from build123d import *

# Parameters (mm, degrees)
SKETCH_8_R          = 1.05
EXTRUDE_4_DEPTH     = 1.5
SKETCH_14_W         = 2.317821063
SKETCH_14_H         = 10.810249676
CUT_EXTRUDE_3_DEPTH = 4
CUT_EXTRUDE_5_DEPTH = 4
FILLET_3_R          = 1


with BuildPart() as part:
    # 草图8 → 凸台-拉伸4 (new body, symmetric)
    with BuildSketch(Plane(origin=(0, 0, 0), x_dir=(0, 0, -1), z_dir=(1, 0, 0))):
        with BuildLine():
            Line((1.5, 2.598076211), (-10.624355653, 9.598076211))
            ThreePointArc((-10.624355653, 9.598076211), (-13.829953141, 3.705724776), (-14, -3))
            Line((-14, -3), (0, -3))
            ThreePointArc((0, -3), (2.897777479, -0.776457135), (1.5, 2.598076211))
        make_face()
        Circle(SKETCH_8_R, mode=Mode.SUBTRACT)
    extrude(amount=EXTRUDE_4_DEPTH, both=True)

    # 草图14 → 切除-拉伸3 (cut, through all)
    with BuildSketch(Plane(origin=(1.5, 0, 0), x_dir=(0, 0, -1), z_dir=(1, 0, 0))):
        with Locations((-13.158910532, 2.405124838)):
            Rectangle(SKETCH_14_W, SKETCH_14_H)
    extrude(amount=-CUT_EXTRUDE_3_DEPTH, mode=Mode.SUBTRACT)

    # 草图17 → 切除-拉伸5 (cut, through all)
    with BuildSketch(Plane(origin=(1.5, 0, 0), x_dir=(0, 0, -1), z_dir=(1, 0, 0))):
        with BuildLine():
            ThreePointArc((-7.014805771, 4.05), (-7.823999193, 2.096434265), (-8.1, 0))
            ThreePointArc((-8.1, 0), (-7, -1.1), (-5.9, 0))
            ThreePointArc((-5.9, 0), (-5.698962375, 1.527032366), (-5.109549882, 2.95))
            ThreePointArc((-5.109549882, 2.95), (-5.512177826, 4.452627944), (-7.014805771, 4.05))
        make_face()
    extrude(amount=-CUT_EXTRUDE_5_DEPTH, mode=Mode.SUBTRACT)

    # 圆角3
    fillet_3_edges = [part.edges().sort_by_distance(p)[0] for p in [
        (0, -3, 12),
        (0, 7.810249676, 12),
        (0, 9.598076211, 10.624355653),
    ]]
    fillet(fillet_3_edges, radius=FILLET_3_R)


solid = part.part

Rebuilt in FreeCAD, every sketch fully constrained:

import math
import FreeCAD as App
import Part
import Sketcher
from FreeCAD import Vector
Q = App.Units.Quantity


def edges_at(feature, points):
    """Names of the edges that pass closest to the given points."""
    edges = feature.Shape.Edges
    near = lambda p: min(range(len(edges)), key=lambda i: edges[i].distToShape(Part.Vertex(*p))[0])
    return sorted({f"Edge{near(p) + 1}" for p in points})

doc = App.newDocument("Part")
params = doc.addObject("Spreadsheet::Sheet", "Params")
for row, (alias, value) in enumerate([
    ("sketch1_radius", "3 mm"),
    ("sketch1_diameter", "2.1 mm"),
    ("sketch1_height", "14 mm"),
    ("pad1_length", "3 mm"),
    ("sketch3_radius", "8.1 mm"),
    ("sketch3_radius2", "1.1 mm"),
    ("fillet_radius", "1 mm"),
], start=1):
    params.set(f"A{row}", alias)
    params.set(f"B{row}", "=" + value)
    params.setAlias(f"B{row}", alias)

body = doc.addObject("PartDesign::Body", "Body")

sketch1 = body.newObject("Sketcher::SketchObject", "Sketch")
sketch1.AttachmentSupport = (doc.getObject("YZ_Plane"), [""])
sketch1.MapMode = "FlatFace"
sketch1.addGeometry([
    Part.LineSegment(Vector(2.6, -1.5, 0), Vector(9.6, 10.6, 0)),
    Part.ArcOfCircle(Part.Circle(Vector(0, 0, 0), Vector(0, 0, 1), 14.3), math.radians(48), math.radians(102)),
    Part.LineSegment(Vector(-3, 14, 0), Vector(-3, 0, 0)),
    Part.ArcOfCircle(Part.Circle(Vector(0, 0, 0), Vector(0, 0, 1), 3), math.radians(180), math.radians(330)),
    Part.Circle(Vector(0, 0, 0), Vector(0, 0, 1), 1.1),
], False)
sketch1.addConstraint([
    Sketcher.Constraint("Coincident", 0, 2, 1, 1),
    Sketcher.Constraint("Coincident", 1, 2, 2, 1),
    Sketcher.Constraint("Tangent", 2, 2, 3, 1),
    Sketcher.Constraint("Tangent", 3, 2, 0, 1),
    Sketcher.Constraint("Vertical", 2),
    Sketcher.Constraint("Coincident", 1, 3, -1, 1),
    Sketcher.Constraint("Coincident", 3, 3, -1, 1),
    Sketcher.Constraint("Coincident", 4, 3, -1, 1),
    Sketcher.Constraint("Radius", 3, Q("3 mm")),
    Sketcher.Constraint("Diameter", 4, Q("2.1 mm")),
    Sketcher.Constraint("DistanceY", 2, 2, 2, 1, Q("14 mm")),
    Sketcher.Constraint("Angle", 0, Q("60 deg")),
])
sketch1.setExpression("Constraints[8]", "Params.sketch1_radius")
sketch1.setExpression("Constraints[9]", "Params.sketch1_diameter")
sketch1.setExpression("Constraints[10]", "Params.sketch1_height")
pad1 = body.newObject("PartDesign::Pad", "Pad")
pad1.Profile = sketch1
pad1.setExpression("Length", "Params.pad1_length")
pad1.Midplane = True

sketch2 = body.newObject("Sketcher::SketchObject", "Sketch001")
sketch2.AttachmentSupport = (doc.getObject("YZ_Plane"), [""])
sketch2.MapMode = "FlatFace"
sketch2.AttachmentOffset = App.Placement(Vector(0, 0, 1.5), App.Rotation())
sketch2.addGeometry([
    Part.LineSegment(Vector(7.8, 14.3, 0), Vector(-3, 14.3, 0)),
    Part.LineSegment(Vector(-3, 14.3, 0), Vector(-3, 12, 0)),
    Part.LineSegment(Vector(-3, 12, 0), Vector(7.8, 12, 0)),
    Part.LineSegment(Vector(7.8, 12, 0), Vector(7.8, 14.3, 0)),
], False)
sketch2.addConstraint([
    Sketcher.Constraint("Coincident", 0, 2, 1, 1),
    Sketcher.Constraint("Coincident", 1, 2, 2, 1),
    Sketcher.Constraint("Coincident", 2, 2, 3, 1),
    Sketcher.Constraint("Coincident", 3, 2, 0, 1),
    Sketcher.Constraint("Horizontal", 0),
    Sketcher.Constraint("Vertical", 1),
    Sketcher.Constraint("Horizontal", 2),
    Sketcher.Constraint("Vertical", 3),
    Sketcher.Constraint("DistanceX", 0, 2, -1, 1, Q("3 mm")),
    Sketcher.Constraint("DistanceY", -1, 1, 1, 2, Q("12 mm")),
    Sketcher.Constraint("DistanceX", 0, 2, 0, 1, Q("10.81025 mm")),
    Sketcher.Constraint("DistanceY", 1, 2, 1, 1, Q("2.317821 mm")),
])
pocket1 = body.newObject("PartDesign::Pocket", "Pocket")
pocket1.Profile = sketch2
pocket1.Type = "ThroughAll"

sketch3 = body.newObject("Sketcher::SketchObject", "Sketch002")
sketch3.AttachmentSupport = (doc.getObject("YZ_Plane"), [""])
sketch3.MapMode = "FlatFace"
sketch3.AttachmentOffset = App.Placement(Vector(0, 0, 1.5), App.Rotation())
sketch3.addGeometry([
    Part.ArcOfCircle(Part.Circle(Vector(0, 0, 0), Vector(0, 0, 1), 8.1), math.radians(60), math.radians(90)),
    Part.ArcOfCircle(Part.Circle(Vector(0, 7, 0), Vector(0, 0, 1), 1.1), math.radians(90), math.radians(270)),
    Part.ArcOfCircle(Part.Circle(Vector(0, 0, 0), Vector(0, 0, 1), 5.9), math.radians(60), math.radians(90)),
    Part.ArcOfCircle(Part.Circle(Vector(3.5, 6.1, 0), Vector(0, 0, 1), 1.1), math.radians(-120), math.radians(60)),
], False)
sketch3.addConstraint([
    Sketcher.Constraint("Tangent", 0, 2, 1, 1),
    Sketcher.Constraint("Tangent", 1, 2, 2, 2),
    Sketcher.Constraint("Tangent", 2, 1, 3, 1),
    Sketcher.Constraint("Tangent", 3, 2, 0, 1),
    Sketcher.Constraint("Coincident", 0, 3, -1, 1),
    Sketcher.Constraint("Coincident", 2, 3, -1, 1),
    Sketcher.Constraint("PointOnObject", 1, 3, -2),
    Sketcher.Constraint("Radius", 0, Q("8.1 mm")),
    Sketcher.Constraint("Radius", 1, Q("1.1 mm")),
    Sketcher.Constraint("DistanceX", -1, 1, 3, 3, Q("3.5 mm")),
])
sketch3.setExpression("Constraints[7]", "Params.sketch3_radius")
sketch3.setExpression("Constraints[8]", "Params.sketch3_radius2")
pocket2 = body.newObject("PartDesign::Pocket", "Pocket001")
pocket2.Profile = sketch3
pocket2.Type = "ThroughAll"
doc.recompute()

fillet = body.newObject("PartDesign::Fillet", "Fillet")
fillet.Base = (pocket2, edges_at(pocket2, [(0, -3, 12), (0, 7.81, 12), (0, 9.598, 10.624)]))
fillet.setExpression("Radius", "Params.fillet_radius")

doc.recompute()
